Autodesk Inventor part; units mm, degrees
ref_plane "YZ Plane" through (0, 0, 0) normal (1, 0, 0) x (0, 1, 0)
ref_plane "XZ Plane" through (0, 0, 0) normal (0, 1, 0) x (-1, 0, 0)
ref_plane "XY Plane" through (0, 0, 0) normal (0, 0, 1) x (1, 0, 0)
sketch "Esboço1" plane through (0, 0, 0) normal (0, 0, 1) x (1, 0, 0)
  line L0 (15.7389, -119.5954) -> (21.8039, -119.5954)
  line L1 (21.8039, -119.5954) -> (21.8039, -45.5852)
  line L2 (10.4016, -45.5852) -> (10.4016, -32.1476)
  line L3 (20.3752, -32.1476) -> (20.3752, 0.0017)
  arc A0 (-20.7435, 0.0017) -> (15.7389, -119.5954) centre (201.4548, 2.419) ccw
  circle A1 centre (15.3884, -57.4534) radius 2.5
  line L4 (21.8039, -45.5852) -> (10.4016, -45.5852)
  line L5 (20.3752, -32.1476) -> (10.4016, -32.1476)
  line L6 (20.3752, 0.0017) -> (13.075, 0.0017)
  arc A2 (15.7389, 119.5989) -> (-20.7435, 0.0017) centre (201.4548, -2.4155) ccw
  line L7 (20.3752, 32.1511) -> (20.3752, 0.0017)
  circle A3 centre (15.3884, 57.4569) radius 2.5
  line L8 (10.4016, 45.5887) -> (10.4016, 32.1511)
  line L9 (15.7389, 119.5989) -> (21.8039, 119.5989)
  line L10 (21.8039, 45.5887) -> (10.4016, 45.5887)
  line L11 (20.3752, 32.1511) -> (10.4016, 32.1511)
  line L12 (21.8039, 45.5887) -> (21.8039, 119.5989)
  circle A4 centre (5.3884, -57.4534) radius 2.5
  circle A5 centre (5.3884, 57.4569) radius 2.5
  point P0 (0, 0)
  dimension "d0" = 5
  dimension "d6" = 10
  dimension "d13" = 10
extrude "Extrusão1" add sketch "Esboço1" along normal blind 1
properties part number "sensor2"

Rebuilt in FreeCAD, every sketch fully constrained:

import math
import FreeCAD as App
import Part
import Sketcher

V = App.Vector

doc = App.newDocument("Part")
body = doc.addObject("PartDesign::Body", "Body")

sketch1 = body.newObject("Sketcher::SketchObject", "Sketch")
sketch1.AttachmentSupport = (doc.getObject("XY_Plane"), [""])
sketch1.MapMode = "FlatFace"
sketch1.addGeometry(Part.ArcOfCircle(Part.Circle(V(201.5, 2.4, 0), V(0, 0, 1), 222.2), math.radians(-179), math.radians(-147)), False)
sketch1.addGeometry(Part.LineSegment(V(15.7, -119.6, 0), V(21.8, -119.6, 0)), False)
sketch1.addGeometry(Part.LineSegment(V(21.8, -119.6, 0), V(21.8, -45.6, 0)), False)
sketch1.addGeometry(Part.LineSegment(V(21.8, -45.6, 0), V(10.4, -45.6, 0)), False)
sketch1.addGeometry(Part.LineSegment(V(10.4, -45.6, 0), V(10.4, -32.1, 0)), False)
sketch1.addGeometry(Part.LineSegment(V(10.4, -32.1, 0), V(20.4, -32.1, 0)), False)
sketch1.addGeometry(Part.LineSegment(V(20.4, -32.1, 0), V(20.4, 32.2, 0)), False)
sketch1.addGeometry(Part.LineSegment(V(20.4, 32.2, 0), V(10.4, 32.2, 0)), False)
sketch1.addGeometry(Part.LineSegment(V(10.4, 32.2, 0), V(10.4, 45.6, 0)), False)
sketch1.addGeometry(Part.LineSegment(V(10.4, 45.6, 0), V(21.8, 45.6, 0)), False)
sketch1.addGeometry(Part.LineSegment(V(21.8, 45.6, 0), V(21.8, 119.6, 0)), False)
sketch1.addGeometry(Part.LineSegment(V(21.8, 119.6, 0), V(15.7, 119.6, 0)), False)
sketch1.addGeometry(Part.ArcOfCircle(Part.Circle(V(201.5, -2.4, 0), V(0, 0, 1), 222.2), math.radians(147), math.radians(179)), False)
sketch1.addGeometry(Part.Circle(V(5.4, -57.5, 0), V(0, 0, 1), 2.5), False)
sketch1.addGeometry(Part.Circle(V(15.4, -57.5, 0), V(0, 0, 1), 2.5), False)
sketch1.addGeometry(Part.Circle(V(5.4, 57.5, 0), V(0, 0, 1), 2.5), False)
sketch1.addGeometry(Part.Circle(V(15.4, 57.5, 0), V(0, 0, 1), 2.5), False)
sketch1.addConstraint(Sketcher.Constraint("Coincident", 0, 2, 1, 1))
sketch1.addConstraint(Sketcher.Constraint("Coincident", 1, 2, 2, 1))
sketch1.addConstraint(Sketcher.Constraint("Coincident", 2, 2, 3, 1))
sketch1.addConstraint(Sketcher.Constraint("Coincident", 3, 2, 4, 1))
sketch1.addConstraint(Sketcher.Constraint("Coincident", 4, 2, 5, 1))
sketch1.addConstraint(Sketcher.Constraint("Coincident", 5, 2, 6, 1))
sketch1.addConstraint(Sketcher.Constraint("Coincident", 6, 2, 7, 1))
sketch1.addConstraint(Sketcher.Constraint("Coincident", 7, 2, 8, 1))
sketch1.addConstraint(Sketcher.Constraint("Coincident", 8, 2, 9, 1))
sketch1.addConstraint(Sketcher.Constraint("Coincident", 9, 2, 10, 1))
sketch1.addConstraint(Sketcher.Constraint("Coincident", 10, 2, 11, 1))
sketch1.addConstraint(Sketcher.Constraint("Coincident", 11, 2, 12, 1))
sketch1.addConstraint(Sketcher.Constraint("Coincident", 12, 2, 0, 1))
sketch1.addConstraint(Sketcher.Constraint("Horizontal", 1))
sketch1.addConstraint(Sketcher.Constraint("Vertical", 2))
sketch1.addConstraint(Sketcher.Constraint("Horizontal", 3))
sketch1.addConstraint(Sketcher.Constraint("Vertical", 4))
sketch1.addConstraint(Sketcher.Constraint("Horizontal", 5))
sketch1.addConstraint(Sketcher.Constraint("Vertical", 6))
sketch1.addConstraint(Sketcher.Constraint("Horizontal", 7))
sketch1.addConstraint(Sketcher.Constraint("Vertical", 8))
sketch1.addConstraint(Sketcher.Constraint("Horizontal", 9))
sketch1.addConstraint(Sketcher.Constraint("Vertical", 10))
sketch1.addConstraint(Sketcher.Constraint("Horizontal", 11))
sketch1.addConstraint(Sketcher.Constraint("Equal", 0, 12))
sketch1.addConstraint(Sketcher.Constraint("Equal", 13, 14))
sketch1.addConstraint(Sketcher.Constraint("Equal", 14, 15))
sketch1.addConstraint(Sketcher.Constraint("Equal", 15, 16))
sketch1.addConstraint(Sketcher.Constraint("Horizontal", 13, 3, 14, 3))
sketch1.addConstraint(Sketcher.Constraint("Horizontal", 15, 3, 16, 3))
sketch1.addConstraint(Sketcher.Constraint("Vertical", 0, 3, 12, 3))
sketch1.addConstraint(Sketcher.Constraint("Vertical", 13, 3, 15, 3))
sketch1.addConstraint(Sketcher.Constraint("Vertical", 14, 3, 16, 3))
sketch1.addConstraint(Sketcher.Constraint("Vertical", 4, 2, 7, 2))
sketch1.addConstraint(Sketcher.Constraint("Vertical", 2, 2, 9, 2))
sketch1.addConstraint(Sketcher.Constraint("Vertical", 0, 2, 11, 2))
sketch1.addConstraint(Sketcher.Constraint("Equal", 4, 8))
sketch1.addConstraint(Sketcher.Constraint("Equal", 2, 10))
sketch1.addConstraint(Sketcher.Constraint("Diameter", 13, 5.0))
sketch1.addConstraint(Sketcher.Constraint("DistanceX", 13, 3, 14, 3, 10.0))
sketch1.addConstraint(Sketcher.Constraint("Radius", 0, 222.2114))
sketch1.addConstraint(Sketcher.Constraint("DistanceX", 1, 1, 1, 2, 6.065))
sketch1.addConstraint(Sketcher.Constraint("DistanceY", 0, 2, 12, 3, 117.18))
sketch1.addConstraint(Sketcher.Constraint("DistanceX", 3, 2, 3, 1, 11.4023))
sketch1.addConstraint(Sketcher.Constraint("DistanceX", 5, 1, 5, 2, 9.9736))
sketch1.addConstraint(Sketcher.Constraint("DistanceY", 2, 1, 2, 2, 74.0102))
sketch1.addConstraint(Sketcher.Constraint("DistanceY", 4, 1, 4, 2, 13.4376))
sketch1.addConstraint(Sketcher.Constraint("DistanceY", 6, 1, 6, 2, 64.2987))
sketch1.addConstraint(Sketcher.Constraint("DistanceY", -1, 1, 0, 3, 2.419))
sketch1.addConstraint(Sketcher.Constraint("DistanceY", -1, 1, 15, 3, 57.457))
sketch1.addConstraint(Sketcher.Constraint("DistanceX", -1, 1, 1, 2, 21.804))
sketch1.addConstraint(Sketcher.Constraint("DistanceY", 13, 3, 12, 3, 55.038))
sketch1.addConstraint(Sketcher.Constraint("DistanceX", -1, 1, 13, 3, 5.3884))
pad1 = body.newObject("PartDesign::Pad", "Pad")
pad1.Profile = sketch1
pad1.Length = 1

doc.recompute()
